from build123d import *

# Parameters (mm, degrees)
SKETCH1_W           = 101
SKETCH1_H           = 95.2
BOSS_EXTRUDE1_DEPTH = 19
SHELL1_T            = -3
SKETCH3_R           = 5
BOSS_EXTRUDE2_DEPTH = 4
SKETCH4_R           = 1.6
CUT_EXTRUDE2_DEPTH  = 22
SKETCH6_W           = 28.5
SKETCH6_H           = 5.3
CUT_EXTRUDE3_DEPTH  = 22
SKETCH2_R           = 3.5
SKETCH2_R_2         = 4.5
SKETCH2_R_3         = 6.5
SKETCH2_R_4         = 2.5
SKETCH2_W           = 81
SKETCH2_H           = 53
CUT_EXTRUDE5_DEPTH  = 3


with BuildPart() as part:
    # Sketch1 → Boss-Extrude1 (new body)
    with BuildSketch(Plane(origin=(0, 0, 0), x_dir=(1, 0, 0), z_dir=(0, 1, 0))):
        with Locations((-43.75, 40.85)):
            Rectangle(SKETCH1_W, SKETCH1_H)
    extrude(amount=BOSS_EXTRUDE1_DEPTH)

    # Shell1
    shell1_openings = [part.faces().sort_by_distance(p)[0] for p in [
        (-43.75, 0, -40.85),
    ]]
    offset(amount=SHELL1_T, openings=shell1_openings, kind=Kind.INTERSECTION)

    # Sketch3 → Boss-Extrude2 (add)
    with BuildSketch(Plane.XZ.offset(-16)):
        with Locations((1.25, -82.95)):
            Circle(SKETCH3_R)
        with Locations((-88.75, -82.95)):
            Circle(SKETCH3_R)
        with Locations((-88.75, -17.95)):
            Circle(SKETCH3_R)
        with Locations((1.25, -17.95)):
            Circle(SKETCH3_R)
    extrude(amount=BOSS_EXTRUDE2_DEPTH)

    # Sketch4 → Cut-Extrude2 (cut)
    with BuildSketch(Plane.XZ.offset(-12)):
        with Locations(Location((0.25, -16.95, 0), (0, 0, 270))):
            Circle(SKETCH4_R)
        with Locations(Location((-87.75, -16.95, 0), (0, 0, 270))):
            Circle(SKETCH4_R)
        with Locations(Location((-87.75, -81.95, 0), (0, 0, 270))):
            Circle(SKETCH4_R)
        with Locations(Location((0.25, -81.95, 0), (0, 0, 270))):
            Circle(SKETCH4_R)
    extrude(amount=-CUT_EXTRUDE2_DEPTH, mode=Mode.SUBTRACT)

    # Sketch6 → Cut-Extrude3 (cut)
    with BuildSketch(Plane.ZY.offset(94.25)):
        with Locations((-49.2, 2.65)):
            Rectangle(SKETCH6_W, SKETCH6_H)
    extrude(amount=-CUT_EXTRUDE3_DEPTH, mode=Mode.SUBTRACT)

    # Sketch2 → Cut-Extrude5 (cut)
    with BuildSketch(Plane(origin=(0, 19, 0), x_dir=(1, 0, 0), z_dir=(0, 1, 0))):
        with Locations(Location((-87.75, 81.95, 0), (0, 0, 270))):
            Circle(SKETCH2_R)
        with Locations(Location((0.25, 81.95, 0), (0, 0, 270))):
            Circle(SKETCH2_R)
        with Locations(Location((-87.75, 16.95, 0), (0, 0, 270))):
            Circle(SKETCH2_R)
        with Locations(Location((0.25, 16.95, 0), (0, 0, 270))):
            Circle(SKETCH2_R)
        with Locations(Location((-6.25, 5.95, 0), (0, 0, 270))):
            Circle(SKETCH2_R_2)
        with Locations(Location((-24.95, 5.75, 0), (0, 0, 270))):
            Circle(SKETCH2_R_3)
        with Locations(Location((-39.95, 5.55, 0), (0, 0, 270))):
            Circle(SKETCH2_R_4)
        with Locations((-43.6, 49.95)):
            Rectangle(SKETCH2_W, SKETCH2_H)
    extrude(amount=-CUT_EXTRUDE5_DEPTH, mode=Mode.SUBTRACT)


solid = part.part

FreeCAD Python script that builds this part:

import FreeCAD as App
import Part
import Sketcher

V = App.Vector
Q = App.Units.Quantity


def faces_at(feature, points):
    """Names of the faces that lie closest to the given points."""
    faces = feature.Shape.Faces
    near = lambda p: min(range(len(faces)), key=lambda i: faces[i].distToShape(Part.Vertex(*p))[0])
    return sorted({f"Face{near(p) + 1}" for p in points})


def add_polygon(sketch, points):
    """Adds a closed chain of lines whose ends are joined by coincident constraints."""
    first, n = sketch.GeometryCount, len(points)
    for a, b in zip(points, points[1:] + points[:1]):
        sketch.addGeometry(Part.LineSegment(App.Vector(*a, 0), App.Vector(*b, 0)), False)
    for i in range(n):
        sketch.addConstraint(Sketcher.Constraint("Coincident", first + i, 2, first + (i + 1) % n, 1))

doc = App.newDocument("Part")
body = doc.addObject("PartDesign::Body", "Body")

sketch1 = doc.addObject("Sketcher::SketchObject", "Sketch")
body.addObject(sketch1)
sketch1.AttachmentSupport = (doc.XZ_Plane, [""])
sketch1.MapMode = "FlatFace"
add_polygon(sketch1, [(-94, -88), (-94, 7), (7, 7), (7, -88)])
sketch1.addConstraint([
    Sketcher.Constraint("Vertical", 0),
    Sketcher.Constraint("Horizontal", 1),
    Sketcher.Constraint("Vertical", 2),
    Sketcher.Constraint("Horizontal", 3),
    Sketcher.Constraint("DistanceX", 1, 1, 1, 2, Q("101 mm")),
    Sketcher.Constraint("DistanceY", 0, 1, 0, 2, Q("95.2 mm")),
    Sketcher.Constraint("DistanceX", 0, 2, -1, 1, Q("94.25 mm")),
    Sketcher.Constraint("DistanceY", -1, 1, 0, 2, Q("6.75 mm")),
])
pad1 = doc.addObject("PartDesign::Pad", "Pad")
body.addObject(pad1)
pad1.Profile = sketch1
pad1.Length = 19
pad1.Reversed = True
doc.recompute()

thickness = doc.addObject("PartDesign::Thickness", "Thickness")
body.addObject(thickness)
thickness.Base = (pad1, faces_at(pad1, [(-43.75, 0, -40.85)]))
thickness.Value = 3
thickness.Reversed = True
thickness.Join = "Intersection"

sketch2 = doc.addObject("Sketcher::SketchObject", "Sketch001")
body.addObject(sketch2)
sketch2.AttachmentSupport = (doc.XZ_Plane, [""])
sketch2.MapMode = "FlatFace"
sketch2.AttachmentOffset = App.Placement(V(0, 0, -16), App.Rotation())
sketch2.addGeometry([
    Part.Circle(V(1, -83, 0), V(0, 0, 1), 5),
    Part.Circle(V(-89, -83, 0), V(0, 0, 1), 5),
    Part.Circle(V(-89, -18, 0), V(0, 0, 1), 5),
    Part.Circle(V(1, -18, 0), V(0, 0, 1), 5),
], False)
sketch2.addConstraint([
    Sketcher.Constraint("Equal", 0, 1),
    Sketcher.Constraint("Equal", 1, 2),
    Sketcher.Constraint("Equal", 2, 3),
    Sketcher.Constraint("Horizontal", 0, 3, 1, 3),
    Sketcher.Constraint("Horizontal", 2, 3, 3, 3),
    Sketcher.Constraint("Vertical", 1, 3, 2, 3),
    Sketcher.Constraint("Vertical", 0, 3, 3, 3),
    Sketcher.Constraint("Diameter", 0, Q("10 mm")),
    Sketcher.Constraint("DistanceX", 1, 3, 0, 3, Q("90 mm")),
    Sketcher.Constraint("DistanceY", 1, 3, 2, 3, Q("65 mm")),
    Sketcher.Constraint("DistanceX", -1, 1, 0, 3, Q("1.25 mm")),
    Sketcher.Constraint("DistanceY", 0, 3, -1, 1, Q("82.95 mm")),
])
pad2 = doc.addObject("PartDesign::Pad", "Pad001")
body.addObject(pad2)
pad2.Profile = sketch2
pad2.Length = 4

sketch3 = doc.addObject("Sketcher::SketchObject", "Sketch002")
body.addObject(sketch3)
sketch3.AttachmentSupport = (doc.XZ_Plane, [""])
sketch3.MapMode = "FlatFace"
sketch3.AttachmentOffset = App.Placement(V(0, 0, -12), App.Rotation())
sketch3.addGeometry([
    Part.Circle(V(0.2, -16.9, 0), V(0, 0, 1), 1.6),
    Part.Circle(V(-87.8, -16.9, 0), V(0, 0, 1), 1.6),
    Part.Circle(V(-87.8, -82, 0), V(0, 0, 1), 1.6),
    Part.Circle(V(0.2, -82, 0), V(0, 0, 1), 1.6),
], False)
sketch3.addConstraint([
    Sketcher.Constraint("Equal", 0, 1),
    Sketcher.Constraint("Equal", 1, 2),
    Sketcher.Constraint("Equal", 2, 3),
    Sketcher.Constraint("Horizontal", 0, 3, 1, 3),
    Sketcher.Constraint("Horizontal", 2, 3, 3, 3),
    Sketcher.Constraint("Vertical", 1, 3, 2, 3),
    Sketcher.Constraint("Vertical", 0, 3, 3, 3),
    Sketcher.Constraint("Diameter", 0, Q("3.2 mm")),
    Sketcher.Constraint("DistanceX", 1, 3, 0, 3, Q("88 mm")),
    Sketcher.Constraint("DistanceY", 2, 3, 1, 3, Q("65 mm")),
    Sketcher.Constraint("DistanceX", -1, 1, 0, 3, Q("0.25 mm")),
    Sketcher.Constraint("DistanceY", 0, 3, -1, 1, Q("16.95 mm")),
])
pocket1 = doc.addObject("PartDesign::Pocket", "Pocket")
body.addObject(pocket1)
pocket1.Profile = sketch3
pocket1.Length = 22

sketch4 = doc.addObject("Sketcher::SketchObject", "Sketch003")
body.addObject(sketch4)
sketch4.AttachmentSupport = (doc.YZ_Plane, [""])
sketch4.MapMode = "FlatFace"
sketch4.AttachmentOffset = App.Placement(V(0, 0, -94.25), App.Rotation())
add_polygon(sketch4, [(5, -63), (0, -63), (0, -35), (5, -35)])
sketch4.addConstraint([
    Sketcher.Constraint("Horizontal", 0),
    Sketcher.Constraint("Vertical", 1),
    Sketcher.Constraint("Horizontal", 2),
    Sketcher.Constraint("Vertical", 3),
    Sketcher.Constraint("PointOnObject", 0, 2, -2),
    Sketcher.Constraint("DistanceX", 0, 2, 0, 1, Q("5.3 mm")),
    Sketcher.Constraint("DistanceY", 1, 1, 1, 2, Q("28.5 mm")),
    Sketcher.Constraint("DistanceY", 0, 2, -1, 1, Q("63.45 mm")),
])
pocket2 = doc.addObject("PartDesign::Pocket", "Pocket001")
body.addObject(pocket2)
pocket2.Profile = sketch4
pocket2.Length = 22
pocket2.Reversed = True

sketch5 = doc.addObject("Sketcher::SketchObject", "Sketch004")
body.addObject(sketch5)
sketch5.AttachmentSupport = (doc.XZ_Plane, [""])
sketch5.MapMode = "FlatFace"
sketch5.AttachmentOffset = App.Placement(V(0, 0, -19), App.Rotation())
sketch5.addGeometry(Part.Circle(V(-87.8, -82, 0), V(0, 0, 1), 3.5), False)
sketch5.addGeometry(Part.Circle(V(0.2, -82, 0), V(0, 0, 1), 3.5), False)
sketch5.addGeometry(Part.Circle(V(-87.8, -16.9, 0), V(0, 0, 1), 3.5), False)
sketch5.addGeometry(Part.Circle(V(0.2, -16.9, 0), V(0, 0, 1), 3.5), False)
sketch5.addGeometry(Part.Circle(V(-6.2, -6, 0), V(0, 0, 1), 4.5), False)
sketch5.addGeometry(Part.Circle(V(-24.9, -5.8, 0), V(0, 0, 1), 6.5), False)
sketch5.addGeometry(Part.Circle(V(-40, -5.5, 0), V(0, 0, 1), 2.5), False)
add_polygon(sketch5, [(-84.1, -76.5), (-84.1, -23.4), (-3.1, -23.4), (-3.1, -76.5)])
sketch5.addConstraint([
    Sketcher.Constraint("Vertical", 7),
    Sketcher.Constraint("Horizontal", 8),
    Sketcher.Constraint("Vertical", 9),
    Sketcher.Constraint("Horizontal", 10),
    Sketcher.Constraint("Equal", 0, 1),
    Sketcher.Constraint("Equal", 1, 2),
    Sketcher.Constraint("Equal", 2, 3),
    Sketcher.Constraint("Horizontal", 0, 3, 1, 3),
    Sketcher.Constraint("Horizontal", 2, 3, 3, 3),
    Sketcher.Constraint("Vertical", 0, 3, 2, 3),
    Sketcher.Constraint("Vertical", 1, 3, 3, 3),
    Sketcher.Constraint("Diameter", 0, Q("7 mm")),
    Sketcher.Constraint("Diameter", 4, Q("9 mm")),
    Sketcher.Constraint("Diameter", 5, Q("13 mm")),
    Sketcher.Constraint("Diameter", 6, Q("5 mm")),
    Sketcher.Constraint("DistanceX", 8, 1, 8, 2, Q("81 mm")),
    Sketcher.Constraint("DistanceY", 7, 1, 7, 2, Q("53 mm")),
    Sketcher.Constraint("DistanceX", 0, 3, 1, 3, Q("88 mm")),
    Sketcher.Constraint("DistanceY", 0, 3, 2, 3, Q("65 mm")),
    Sketcher.Constraint("DistanceY", 3, 3, 4, 3, Q("11 mm")),
    Sketcher.Constraint("DistanceX", 6, 3, 5, 3, Q("15 mm")),
    Sketcher.Constraint("DistanceX", 7, 2, -1, 1, Q("84.1 mm")),
    Sketcher.Constraint("DistanceX", 4, 3, 3, 3, Q("6.5 mm")),
    Sketcher.Constraint("DistanceX", 5, 3, 4, 3, Q("18.7 mm")),
    Sketcher.Constraint("DistanceY", 4, 3, 5, 3, Q("0.2 mm")),
    Sketcher.Constraint("DistanceY", 5, 3, 6, 3, Q("0.2 mm")),
    Sketcher.Constraint("DistanceY", 7, 2, 2, 3, Q("6.5 mm")),
    Sketcher.Constraint("DistanceX", 0, 3, -1, 1, Q("87.75 mm")),
    Sketcher.Constraint("DistanceY", 0, 3, -1, 1, Q("81.95 mm")),
])
pocket3 = doc.addObject("PartDesign::Pocket", "Pocket002")
body.addObject(pocket3)
pocket3.Profile = sketch5
pocket3.Length = 3
pocket3.Reversed = True

doc.recompute()
